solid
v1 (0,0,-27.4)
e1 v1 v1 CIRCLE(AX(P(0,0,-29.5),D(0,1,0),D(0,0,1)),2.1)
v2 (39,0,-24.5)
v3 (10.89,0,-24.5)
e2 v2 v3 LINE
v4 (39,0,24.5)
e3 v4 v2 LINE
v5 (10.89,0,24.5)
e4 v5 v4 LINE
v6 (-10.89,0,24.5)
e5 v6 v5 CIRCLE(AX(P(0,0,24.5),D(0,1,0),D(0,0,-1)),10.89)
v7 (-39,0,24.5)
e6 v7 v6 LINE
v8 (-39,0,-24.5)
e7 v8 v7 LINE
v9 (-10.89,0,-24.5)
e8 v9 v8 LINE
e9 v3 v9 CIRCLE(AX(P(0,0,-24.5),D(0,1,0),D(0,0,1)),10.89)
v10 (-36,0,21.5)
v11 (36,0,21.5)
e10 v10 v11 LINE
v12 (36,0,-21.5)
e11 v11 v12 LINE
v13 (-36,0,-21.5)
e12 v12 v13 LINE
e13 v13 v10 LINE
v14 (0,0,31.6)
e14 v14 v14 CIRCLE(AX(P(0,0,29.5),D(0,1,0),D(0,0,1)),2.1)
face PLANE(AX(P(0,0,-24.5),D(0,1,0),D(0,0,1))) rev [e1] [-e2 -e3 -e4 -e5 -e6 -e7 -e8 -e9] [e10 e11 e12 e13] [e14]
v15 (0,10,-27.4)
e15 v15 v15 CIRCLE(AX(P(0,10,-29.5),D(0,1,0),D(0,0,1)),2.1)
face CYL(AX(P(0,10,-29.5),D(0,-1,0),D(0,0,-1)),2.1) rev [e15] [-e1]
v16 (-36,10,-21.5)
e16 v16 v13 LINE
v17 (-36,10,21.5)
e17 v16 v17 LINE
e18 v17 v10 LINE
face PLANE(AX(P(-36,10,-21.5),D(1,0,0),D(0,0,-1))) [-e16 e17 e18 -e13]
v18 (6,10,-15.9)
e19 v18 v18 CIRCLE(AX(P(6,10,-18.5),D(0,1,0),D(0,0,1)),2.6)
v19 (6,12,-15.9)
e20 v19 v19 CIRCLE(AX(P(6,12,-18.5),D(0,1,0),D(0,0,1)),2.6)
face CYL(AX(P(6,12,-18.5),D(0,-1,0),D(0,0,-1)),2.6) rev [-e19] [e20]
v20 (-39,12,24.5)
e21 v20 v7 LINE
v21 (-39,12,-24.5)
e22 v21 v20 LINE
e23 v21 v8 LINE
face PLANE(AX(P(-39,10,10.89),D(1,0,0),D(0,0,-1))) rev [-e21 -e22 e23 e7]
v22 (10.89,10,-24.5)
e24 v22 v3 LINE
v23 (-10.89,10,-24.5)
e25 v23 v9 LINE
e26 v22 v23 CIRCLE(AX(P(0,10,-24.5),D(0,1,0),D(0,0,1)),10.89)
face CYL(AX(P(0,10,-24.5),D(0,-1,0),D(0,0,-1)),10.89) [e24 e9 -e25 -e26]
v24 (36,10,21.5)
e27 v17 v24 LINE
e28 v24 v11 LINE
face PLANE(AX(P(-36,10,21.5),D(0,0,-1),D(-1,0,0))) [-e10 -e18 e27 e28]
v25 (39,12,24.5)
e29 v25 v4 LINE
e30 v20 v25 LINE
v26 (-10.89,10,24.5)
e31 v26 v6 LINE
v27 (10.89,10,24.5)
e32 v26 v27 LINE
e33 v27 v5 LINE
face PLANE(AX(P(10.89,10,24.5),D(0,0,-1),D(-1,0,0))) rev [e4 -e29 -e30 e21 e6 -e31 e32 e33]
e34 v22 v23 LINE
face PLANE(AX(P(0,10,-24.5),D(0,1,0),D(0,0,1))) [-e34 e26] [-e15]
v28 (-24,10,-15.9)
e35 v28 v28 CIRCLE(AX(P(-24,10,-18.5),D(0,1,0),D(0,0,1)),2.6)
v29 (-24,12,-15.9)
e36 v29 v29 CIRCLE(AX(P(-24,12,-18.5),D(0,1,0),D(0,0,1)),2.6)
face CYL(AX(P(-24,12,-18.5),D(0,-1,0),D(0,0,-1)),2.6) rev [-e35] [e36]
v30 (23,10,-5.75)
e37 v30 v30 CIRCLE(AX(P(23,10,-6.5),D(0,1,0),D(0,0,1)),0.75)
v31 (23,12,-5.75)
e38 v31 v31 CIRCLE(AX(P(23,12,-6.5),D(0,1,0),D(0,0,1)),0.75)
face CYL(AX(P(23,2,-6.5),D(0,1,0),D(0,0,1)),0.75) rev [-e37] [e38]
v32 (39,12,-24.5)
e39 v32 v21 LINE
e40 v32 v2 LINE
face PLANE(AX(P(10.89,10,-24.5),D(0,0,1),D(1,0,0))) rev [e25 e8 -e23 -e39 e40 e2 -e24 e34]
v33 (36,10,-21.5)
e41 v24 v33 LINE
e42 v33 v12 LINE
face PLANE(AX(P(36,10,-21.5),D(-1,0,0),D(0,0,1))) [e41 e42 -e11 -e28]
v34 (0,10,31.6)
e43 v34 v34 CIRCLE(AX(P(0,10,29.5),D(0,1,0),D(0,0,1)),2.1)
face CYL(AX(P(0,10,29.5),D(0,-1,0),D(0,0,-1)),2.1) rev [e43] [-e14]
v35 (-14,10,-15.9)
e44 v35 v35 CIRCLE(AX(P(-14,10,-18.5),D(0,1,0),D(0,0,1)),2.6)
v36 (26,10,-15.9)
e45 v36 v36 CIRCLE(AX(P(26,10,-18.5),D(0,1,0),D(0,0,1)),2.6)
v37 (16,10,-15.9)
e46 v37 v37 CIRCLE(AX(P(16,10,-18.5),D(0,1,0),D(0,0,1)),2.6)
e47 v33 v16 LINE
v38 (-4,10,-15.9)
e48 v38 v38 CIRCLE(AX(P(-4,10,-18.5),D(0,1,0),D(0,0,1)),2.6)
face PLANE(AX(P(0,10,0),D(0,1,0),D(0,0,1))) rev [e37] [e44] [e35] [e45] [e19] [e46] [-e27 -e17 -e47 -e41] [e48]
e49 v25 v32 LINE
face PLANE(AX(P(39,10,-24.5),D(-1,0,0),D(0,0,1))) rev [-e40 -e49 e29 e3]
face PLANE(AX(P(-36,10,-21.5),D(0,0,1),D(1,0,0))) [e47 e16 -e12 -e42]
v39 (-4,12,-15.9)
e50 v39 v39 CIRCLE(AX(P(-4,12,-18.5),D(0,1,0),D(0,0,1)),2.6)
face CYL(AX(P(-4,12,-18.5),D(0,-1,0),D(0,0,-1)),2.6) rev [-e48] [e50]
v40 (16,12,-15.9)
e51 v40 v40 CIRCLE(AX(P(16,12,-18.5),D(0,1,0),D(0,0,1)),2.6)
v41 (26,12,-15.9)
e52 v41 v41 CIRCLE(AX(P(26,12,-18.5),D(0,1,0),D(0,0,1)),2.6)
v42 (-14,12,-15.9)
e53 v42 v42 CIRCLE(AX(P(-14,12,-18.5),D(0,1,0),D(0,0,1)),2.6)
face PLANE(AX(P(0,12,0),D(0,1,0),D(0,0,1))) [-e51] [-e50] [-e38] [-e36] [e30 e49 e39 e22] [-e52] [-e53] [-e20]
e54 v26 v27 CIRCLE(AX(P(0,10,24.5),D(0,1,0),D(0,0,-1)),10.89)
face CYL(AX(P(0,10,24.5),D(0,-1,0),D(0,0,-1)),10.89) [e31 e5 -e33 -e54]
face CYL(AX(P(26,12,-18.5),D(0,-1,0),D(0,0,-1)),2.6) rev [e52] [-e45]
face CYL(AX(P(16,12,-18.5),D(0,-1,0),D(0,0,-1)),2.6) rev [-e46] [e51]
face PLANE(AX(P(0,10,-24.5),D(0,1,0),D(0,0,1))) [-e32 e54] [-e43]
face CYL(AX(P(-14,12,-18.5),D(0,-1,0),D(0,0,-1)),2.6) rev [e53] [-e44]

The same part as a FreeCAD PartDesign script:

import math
import FreeCAD as App
import Part
import Sketcher
from FreeCAD import Vector


def add_polygon(sketch, points):
    """Adds a closed chain of lines whose ends are joined by coincident constraints."""
    first, n = sketch.GeometryCount, len(points)
    for a, b in zip(points, points[1:] + points[:1]):
        sketch.addGeometry(Part.LineSegment(App.Vector(*a, 0), App.Vector(*b, 0)), False)
    for i in range(n):
        sketch.addConstraint(Sketcher.Constraint("Coincident", first + i, 2, first + (i + 1) % n, 1))

doc = App.newDocument("Part")
body = doc.addObject("PartDesign::Body", "Body")

sketch1 = body.newObject("Sketcher::SketchObject", "Sketch")
sketch1.AttachmentSupport = (doc.getObject("XZ_Plane"), [""])
sketch1.MapMode = "FlatFace"
sketch1.addGeometry(Part.LineSegment(Vector(-39, -24.5, 0), Vector(-39, 24.5, 0)), False)
sketch1.addGeometry(Part.LineSegment(Vector(-39, 24.5, 0), Vector(-10.9, 24.5, 0)), False)
sketch1.addGeometry(Part.ArcOfCircle(Part.Circle(Vector(0, 24.5, 0), Vector(0, 0, 1), 10.9), math.radians(0), math.radians(180)), False)
sketch1.addGeometry(Part.LineSegment(Vector(10.9, 24.5, 0), Vector(39, 24.5, 0)), False)
sketch1.addGeometry(Part.LineSegment(Vector(39, 24.5, 0), Vector(39, -24.5, 0)), False)
sketch1.addGeometry(Part.LineSegment(Vector(39, -24.5, 0), Vector(10.9, -24.5, 0)), False)
sketch1.addGeometry(Part.ArcOfCircle(Part.Circle(Vector(0, -24.5, 0), Vector(0, 0, 1), 10.9), math.radians(180), math.radians(360)), False)
sketch1.addGeometry(Part.LineSegment(Vector(-10.9, -24.5, 0), Vector(-39, -24.5, 0)), False)
sketch1.addGeometry(Part.Circle(Vector(0, 29.5, 0), Vector(0, 0, 1), 2.1), False)
add_polygon(sketch1, [(36, 21.5), (-36, 21.5), (-36, -21.5), (36, -21.5)])
sketch1.addGeometry(Part.Circle(Vector(0, -29.5, 0), Vector(0, 0, 1), 2.1), False)
sketch1.addConstraint(Sketcher.Constraint("Coincident", 0, 2, 1, 1))
sketch1.addConstraint(Sketcher.Constraint("Coincident", 1, 2, 2, 2))
sketch1.addConstraint(Sketcher.Constraint("Coincident", 2, 1, 3, 1))
sketch1.addConstraint(Sketcher.Constraint("Coincident", 3, 2, 4, 1))
sketch1.addConstraint(Sketcher.Constraint("Coincident", 4, 2, 5, 1))
sketch1.addConstraint(Sketcher.Constraint("Coincident", 5, 2, 6, 2))
sketch1.addConstraint(Sketcher.Constraint("Coincident", 6, 1, 7, 1))
sketch1.addConstraint(Sketcher.Constraint("Coincident", 7, 2, 0, 1))
sketch1.addConstraint(Sketcher.Constraint("Vertical", 0))
sketch1.addConstraint(Sketcher.Constraint("Horizontal", 1))
sketch1.addConstraint(Sketcher.Constraint("Horizontal", 3))
sketch1.addConstraint(Sketcher.Constraint("Vertical", 4))
sketch1.addConstraint(Sketcher.Constraint("Horizontal", 5))
sketch1.addConstraint(Sketcher.Constraint("Horizontal", 7))
sketch1.addConstraint(Sketcher.Constraint("Horizontal", 9))
sketch1.addConstraint(Sketcher.Constraint("Vertical", 10))
sketch1.addConstraint(Sketcher.Constraint("Horizontal", 11))
sketch1.addConstraint(Sketcher.Constraint("Vertical", 12))
sketch1.addConstraint(Sketcher.Constraint("Equal", 2, 6))
sketch1.addConstraint(Sketcher.Constraint("Equal", 8, 13))
sketch1.addConstraint(Sketcher.Constraint("Symmetric", 2, 3, 6, 3, -1, 1))
sketch1.addConstraint(Sketcher.Constraint("Symmetric", 8, 3, 13, 3, -1, 1))
sketch1.addConstraint(Sketcher.Constraint("Symmetric", 0, 2, 4, 2, -1, 1))
sketch1.addConstraint(Sketcher.Constraint("Symmetric", 9, 2, 11, 2, -1, 1))
sketch1.addConstraint(Sketcher.Constraint("Symmetric", 1, 2, 2, 1, -2))
sketch1.addConstraint(Sketcher.Constraint("PointOnObject", 8, 3, -2))
sketch1.addConstraint(Sketcher.Constraint("Horizontal", 2, 3, 0, 2))
sketch1.addConstraint(Sketcher.Constraint("Horizontal", 5, 2, 6, 1))
sketch1.addConstraint(Sketcher.Constraint("Diameter", 8, 4.2))
sketch1.addConstraint(Sketcher.Constraint("DistanceX", 9, 2, 9, 1, 72.0))
sketch1.addConstraint(Sketcher.Constraint("DistanceY", 0, 1, 0, 2, 49.0))
sketch1.addConstraint(Sketcher.Constraint("DistanceY", 10, 2, 10, 1, 43.0))
sketch1.addConstraint(Sketcher.Constraint("Radius", 2, 10.89))
sketch1.addConstraint(Sketcher.Constraint("DistanceX", 0, 2, -1, 1, 39.0))
sketch1.addConstraint(Sketcher.Constraint("DistanceY", 2, 3, 8, 3, 5.0))
pad1 = body.newObject("PartDesign::Pad", "Pad")
pad1.Profile = sketch1
pad1.Length = 10
pad1.Reversed = True

sketch2 = body.newObject("Sketcher::SketchObject", "Sketch001")
sketch2.AttachmentSupport = (doc.getObject("XZ_Plane"), [""])
sketch2.MapMode = "FlatFace"
sketch2.AttachmentOffset = App.Placement(Vector(0, 0, -10), App.Rotation())
add_polygon(sketch2, [(-39, -24.5), (-39, 24.5), (39, 24.5), (39, -24.5)])
sketch2.addGeometry(Part.Circle(Vector(-24, -18.5, 0), Vector(0, 0, 1), 2.6), False)
sketch2.addGeometry(Part.Circle(Vector(-14, -18.5, 0), Vector(0, 0, 1), 2.6), False)
sketch2.addGeometry(Part.Circle(Vector(-4, -18.5, 0), Vector(0, 0, 1), 2.6), False)
sketch2.addGeometry(Part.Circle(Vector(6, -18.5, 0), Vector(0, 0, 1), 2.6), False)
sketch2.addGeometry(Part.Circle(Vector(16, -18.5, 0), Vector(0, 0, 1), 2.6), False)
sketch2.addGeometry(Part.Circle(Vector(26, -18.5, 0), Vector(0, 0, 1), 2.6), False)
sketch2.addConstraint(Sketcher.Constraint("Vertical", 0))
sketch2.addConstraint(Sketcher.Constraint("Horizontal", 1))
sketch2.addConstraint(Sketcher.Constraint("Vertical", 2))
sketch2.addConstraint(Sketcher.Constraint("Horizontal", 3))
sketch2.addConstraint(Sketcher.Constraint("Equal", 4, 5))
sketch2.addConstraint(Sketcher.Constraint("Equal", 5, 6))
sketch2.addConstraint(Sketcher.Constraint("Equal", 6, 7))
sketch2.addConstraint(Sketcher.Constraint("Equal", 7, 8))
sketch2.addConstraint(Sketcher.Constraint("Equal", 8, 9))
sketch2.addConstraint(Sketcher.Constraint("Symmetric", 0, 2, 2, 2, -1, 1))
sketch2.addConstraint(Sketcher.Constraint("Horizontal", 4, 3, 5, 3))
sketch2.addConstraint(Sketcher.Constraint("Horizontal", 5, 3, 6, 3))
sketch2.addConstraint(Sketcher.Constraint("Horizontal", 6, 3, 7, 3))
sketch2.addConstraint(Sketcher.Constraint("Horizontal", 7, 3, 8, 3))
sketch2.addConstraint(Sketcher.Constraint("Horizontal", 8, 3, 9, 3))
sketch2.addConstraint(Sketcher.Constraint("Diameter", 4, 5.2))
sketch2.addConstraint(Sketcher.Constraint("DistanceX", 1, 1, 1, 2, 78.0))
sketch2.addConstraint(Sketcher.Constraint("DistanceY", 0, 1, 0, 2, 49.0))
sketch2.addConstraint(Sketcher.Constraint("DistanceX", 4, 3, -1, 1, 24.0))
sketch2.addConstraint(Sketcher.Constraint("DistanceX", 5, 3, -1, 1, 14.0))
sketch2.addConstraint(Sketcher.Constraint("DistanceX", 6, 3, -1, 1, 4.0))
sketch2.addConstraint(Sketcher.Constraint("DistanceX", -1, 1, 7, 3, 6.0))
sketch2.addConstraint(Sketcher.Constraint("DistanceX", -1, 1, 8, 3, 16.0))
sketch2.addConstraint(Sketcher.Constraint("DistanceX", -1, 1, 9, 3, 26.0))
sketch2.addConstraint(Sketcher.Constraint("DistanceY", 4, 3, 0, 2, 43.0))
pad2 = body.newObject("PartDesign::Pad", "Pad001")
pad2.Profile = sketch2
pad2.Length = 2
pad2.Reversed = True

sketch3 = body.newObject("Sketcher::SketchObject", "Sketch002")
sketch3.AttachmentSupport = (doc.getObject("XZ_Plane"), [""])
sketch3.MapMode = "FlatFace"
sketch3.AttachmentOffset = App.Placement(Vector(0, 0, -12), App.Rotation())
sketch3.addGeometry(Part.Circle(Vector(23, -6.5, 0), Vector(0, 0, 1), 0.8), False)
sketch3.addConstraint(Sketcher.Constraint("Diameter", 0, 1.5))
sketch3.addConstraint(Sketcher.Constraint("DistanceX", -1, 1, 0, 3, 23.0))
sketch3.addConstraint(Sketcher.Constraint("DistanceY", 0, 3, -1, 1, 6.5))
pocket1 = body.newObject("PartDesign::Pocket", "Pocket")
pocket1.Profile = sketch3
pocket1.Length = 10
pocket1.Reversed = True

doc.recompute()
